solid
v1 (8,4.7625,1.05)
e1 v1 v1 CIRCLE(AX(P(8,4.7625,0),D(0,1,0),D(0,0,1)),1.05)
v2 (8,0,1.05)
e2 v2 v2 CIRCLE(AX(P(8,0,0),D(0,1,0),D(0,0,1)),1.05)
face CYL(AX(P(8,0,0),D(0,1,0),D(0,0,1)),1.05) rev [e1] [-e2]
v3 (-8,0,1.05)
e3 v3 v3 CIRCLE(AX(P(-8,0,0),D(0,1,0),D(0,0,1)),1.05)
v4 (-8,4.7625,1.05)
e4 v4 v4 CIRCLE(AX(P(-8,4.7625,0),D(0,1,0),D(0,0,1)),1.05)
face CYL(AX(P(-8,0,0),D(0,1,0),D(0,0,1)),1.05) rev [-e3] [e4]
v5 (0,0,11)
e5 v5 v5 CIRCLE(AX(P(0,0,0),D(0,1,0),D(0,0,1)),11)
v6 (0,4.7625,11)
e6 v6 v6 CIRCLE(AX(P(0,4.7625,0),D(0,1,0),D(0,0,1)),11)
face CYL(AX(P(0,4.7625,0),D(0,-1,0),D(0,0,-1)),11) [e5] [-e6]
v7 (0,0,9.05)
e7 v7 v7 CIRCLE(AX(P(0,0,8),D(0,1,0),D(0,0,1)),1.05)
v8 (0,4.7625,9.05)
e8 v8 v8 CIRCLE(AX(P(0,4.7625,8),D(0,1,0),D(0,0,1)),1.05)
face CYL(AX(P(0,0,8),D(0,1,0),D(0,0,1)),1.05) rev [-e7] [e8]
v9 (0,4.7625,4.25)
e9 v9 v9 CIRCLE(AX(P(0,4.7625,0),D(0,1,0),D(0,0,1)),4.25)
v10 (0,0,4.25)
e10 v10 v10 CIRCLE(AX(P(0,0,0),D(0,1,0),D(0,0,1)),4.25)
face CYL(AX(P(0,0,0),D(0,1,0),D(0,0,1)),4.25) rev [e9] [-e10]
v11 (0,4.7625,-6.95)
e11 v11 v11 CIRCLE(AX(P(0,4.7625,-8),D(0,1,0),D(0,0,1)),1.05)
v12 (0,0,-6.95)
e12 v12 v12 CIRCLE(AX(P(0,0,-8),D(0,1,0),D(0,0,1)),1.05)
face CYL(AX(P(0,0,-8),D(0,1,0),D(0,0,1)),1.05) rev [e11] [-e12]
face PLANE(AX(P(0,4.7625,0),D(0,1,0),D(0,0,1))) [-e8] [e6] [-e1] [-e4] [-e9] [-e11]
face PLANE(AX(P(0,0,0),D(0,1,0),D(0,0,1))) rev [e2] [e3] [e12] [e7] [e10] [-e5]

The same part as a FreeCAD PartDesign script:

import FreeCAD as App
import Part
import Sketcher
from FreeCAD import Vector
Q = App.Units.Quantity

doc = App.newDocument("Part")
body = doc.addObject("PartDesign::Body", "Body")

# Sketch on XZ plane
sketch1 = body.newObject("Sketcher::SketchObject", "Sketch")
sketch1.AttachmentSupport = (doc.getObject("XZ_Plane"), [""])
sketch1.MapMode = "FlatFace"
sketch1.addGeometry(Part.Circle(Vector(0, 0, 0), Vector(0, 0, 1), 11), False)
sketch1.addConstraint([
    Sketcher.Constraint("Coincident", 0, 3, -1, 1),
    Sketcher.Constraint("Diameter", 0, Q("22 mm")),
])
pad1 = body.newObject("PartDesign::Pad", "Pad")
pad1.Profile = sketch1
pad1.Length = 4.7625
pad1.Reversed = True

# Sketch on XZ plane
sketch2 = body.newObject("Sketcher::SketchObject", "Sketch001")
sketch2.AttachmentSupport = (doc.getObject("XZ_Plane"), [""])
sketch2.MapMode = "FlatFace"
sketch2.AttachmentOffset = App.Placement(Vector(0, 0, -4.7625), App.Rotation())
sketch2.addGeometry([
    Part.Circle(Vector(0, 8, 0), Vector(0, 0, 1), 1.1),
    Part.Circle(Vector(-8, 0, 0), Vector(0, 0, 1), 1.1),
    Part.Circle(Vector(0, -8, 0), Vector(0, 0, 1), 1.1),
    Part.Circle(Vector(8, 0, 0), Vector(0, 0, 1), 1.1),
], False)
sketch2.addConstraint([
    Sketcher.Constraint("Equal", 0, 1),
    Sketcher.Constraint("Equal", 1, 2),
    Sketcher.Constraint("Equal", 2, 3),
    Sketcher.Constraint("Symmetric", 0, 3, 2, 3, -1, 1),
    Sketcher.Constraint("Symmetric", 1, 3, 3, 3, -1, 1),
    Sketcher.Constraint("PointOnObject", 0, 3, -2),
    Sketcher.Constraint("PointOnObject", 1, 3, -1),
    Sketcher.Constraint("Diameter", 0, Q("2.1 mm")),
    Sketcher.Constraint("DistanceY", -1, 1, 0, 3, Q("8 mm")),
    Sketcher.Constraint("DistanceX", 1, 3, -1, 1, Q("8 mm")),
])
pocket1 = body.newObject("PartDesign::Pocket", "Pocket")
pocket1.Profile = sketch2
pocket1.Type = "ThroughAll"
pocket1.Reversed = True

# Sketch on XZ plane
sketch3 = body.newObject("Sketcher::SketchObject", "Sketch002")
sketch3.AttachmentSupport = (doc.getObject("XZ_Plane"), [""])
sketch3.MapMode = "FlatFace"
sketch3.AttachmentOffset = App.Placement(Vector(0, 0, -4.7625), App.Rotation())
sketch3.addGeometry(Part.Circle(Vector(0, 0, 0), Vector(0, 0, 1), 4.2), False)
sketch3.addConstraint([
    Sketcher.Constraint("Coincident", 0, 3, -1, 1),
    Sketcher.Constraint("Diameter", 0, Q("8.5 mm")),
])
pocket2 = body.newObject("PartDesign::Pocket", "Pocket001")
pocket2.Profile = sketch3
pocket2.Type = "ThroughAll"
pocket2.Reversed = True

doc.recompute()
